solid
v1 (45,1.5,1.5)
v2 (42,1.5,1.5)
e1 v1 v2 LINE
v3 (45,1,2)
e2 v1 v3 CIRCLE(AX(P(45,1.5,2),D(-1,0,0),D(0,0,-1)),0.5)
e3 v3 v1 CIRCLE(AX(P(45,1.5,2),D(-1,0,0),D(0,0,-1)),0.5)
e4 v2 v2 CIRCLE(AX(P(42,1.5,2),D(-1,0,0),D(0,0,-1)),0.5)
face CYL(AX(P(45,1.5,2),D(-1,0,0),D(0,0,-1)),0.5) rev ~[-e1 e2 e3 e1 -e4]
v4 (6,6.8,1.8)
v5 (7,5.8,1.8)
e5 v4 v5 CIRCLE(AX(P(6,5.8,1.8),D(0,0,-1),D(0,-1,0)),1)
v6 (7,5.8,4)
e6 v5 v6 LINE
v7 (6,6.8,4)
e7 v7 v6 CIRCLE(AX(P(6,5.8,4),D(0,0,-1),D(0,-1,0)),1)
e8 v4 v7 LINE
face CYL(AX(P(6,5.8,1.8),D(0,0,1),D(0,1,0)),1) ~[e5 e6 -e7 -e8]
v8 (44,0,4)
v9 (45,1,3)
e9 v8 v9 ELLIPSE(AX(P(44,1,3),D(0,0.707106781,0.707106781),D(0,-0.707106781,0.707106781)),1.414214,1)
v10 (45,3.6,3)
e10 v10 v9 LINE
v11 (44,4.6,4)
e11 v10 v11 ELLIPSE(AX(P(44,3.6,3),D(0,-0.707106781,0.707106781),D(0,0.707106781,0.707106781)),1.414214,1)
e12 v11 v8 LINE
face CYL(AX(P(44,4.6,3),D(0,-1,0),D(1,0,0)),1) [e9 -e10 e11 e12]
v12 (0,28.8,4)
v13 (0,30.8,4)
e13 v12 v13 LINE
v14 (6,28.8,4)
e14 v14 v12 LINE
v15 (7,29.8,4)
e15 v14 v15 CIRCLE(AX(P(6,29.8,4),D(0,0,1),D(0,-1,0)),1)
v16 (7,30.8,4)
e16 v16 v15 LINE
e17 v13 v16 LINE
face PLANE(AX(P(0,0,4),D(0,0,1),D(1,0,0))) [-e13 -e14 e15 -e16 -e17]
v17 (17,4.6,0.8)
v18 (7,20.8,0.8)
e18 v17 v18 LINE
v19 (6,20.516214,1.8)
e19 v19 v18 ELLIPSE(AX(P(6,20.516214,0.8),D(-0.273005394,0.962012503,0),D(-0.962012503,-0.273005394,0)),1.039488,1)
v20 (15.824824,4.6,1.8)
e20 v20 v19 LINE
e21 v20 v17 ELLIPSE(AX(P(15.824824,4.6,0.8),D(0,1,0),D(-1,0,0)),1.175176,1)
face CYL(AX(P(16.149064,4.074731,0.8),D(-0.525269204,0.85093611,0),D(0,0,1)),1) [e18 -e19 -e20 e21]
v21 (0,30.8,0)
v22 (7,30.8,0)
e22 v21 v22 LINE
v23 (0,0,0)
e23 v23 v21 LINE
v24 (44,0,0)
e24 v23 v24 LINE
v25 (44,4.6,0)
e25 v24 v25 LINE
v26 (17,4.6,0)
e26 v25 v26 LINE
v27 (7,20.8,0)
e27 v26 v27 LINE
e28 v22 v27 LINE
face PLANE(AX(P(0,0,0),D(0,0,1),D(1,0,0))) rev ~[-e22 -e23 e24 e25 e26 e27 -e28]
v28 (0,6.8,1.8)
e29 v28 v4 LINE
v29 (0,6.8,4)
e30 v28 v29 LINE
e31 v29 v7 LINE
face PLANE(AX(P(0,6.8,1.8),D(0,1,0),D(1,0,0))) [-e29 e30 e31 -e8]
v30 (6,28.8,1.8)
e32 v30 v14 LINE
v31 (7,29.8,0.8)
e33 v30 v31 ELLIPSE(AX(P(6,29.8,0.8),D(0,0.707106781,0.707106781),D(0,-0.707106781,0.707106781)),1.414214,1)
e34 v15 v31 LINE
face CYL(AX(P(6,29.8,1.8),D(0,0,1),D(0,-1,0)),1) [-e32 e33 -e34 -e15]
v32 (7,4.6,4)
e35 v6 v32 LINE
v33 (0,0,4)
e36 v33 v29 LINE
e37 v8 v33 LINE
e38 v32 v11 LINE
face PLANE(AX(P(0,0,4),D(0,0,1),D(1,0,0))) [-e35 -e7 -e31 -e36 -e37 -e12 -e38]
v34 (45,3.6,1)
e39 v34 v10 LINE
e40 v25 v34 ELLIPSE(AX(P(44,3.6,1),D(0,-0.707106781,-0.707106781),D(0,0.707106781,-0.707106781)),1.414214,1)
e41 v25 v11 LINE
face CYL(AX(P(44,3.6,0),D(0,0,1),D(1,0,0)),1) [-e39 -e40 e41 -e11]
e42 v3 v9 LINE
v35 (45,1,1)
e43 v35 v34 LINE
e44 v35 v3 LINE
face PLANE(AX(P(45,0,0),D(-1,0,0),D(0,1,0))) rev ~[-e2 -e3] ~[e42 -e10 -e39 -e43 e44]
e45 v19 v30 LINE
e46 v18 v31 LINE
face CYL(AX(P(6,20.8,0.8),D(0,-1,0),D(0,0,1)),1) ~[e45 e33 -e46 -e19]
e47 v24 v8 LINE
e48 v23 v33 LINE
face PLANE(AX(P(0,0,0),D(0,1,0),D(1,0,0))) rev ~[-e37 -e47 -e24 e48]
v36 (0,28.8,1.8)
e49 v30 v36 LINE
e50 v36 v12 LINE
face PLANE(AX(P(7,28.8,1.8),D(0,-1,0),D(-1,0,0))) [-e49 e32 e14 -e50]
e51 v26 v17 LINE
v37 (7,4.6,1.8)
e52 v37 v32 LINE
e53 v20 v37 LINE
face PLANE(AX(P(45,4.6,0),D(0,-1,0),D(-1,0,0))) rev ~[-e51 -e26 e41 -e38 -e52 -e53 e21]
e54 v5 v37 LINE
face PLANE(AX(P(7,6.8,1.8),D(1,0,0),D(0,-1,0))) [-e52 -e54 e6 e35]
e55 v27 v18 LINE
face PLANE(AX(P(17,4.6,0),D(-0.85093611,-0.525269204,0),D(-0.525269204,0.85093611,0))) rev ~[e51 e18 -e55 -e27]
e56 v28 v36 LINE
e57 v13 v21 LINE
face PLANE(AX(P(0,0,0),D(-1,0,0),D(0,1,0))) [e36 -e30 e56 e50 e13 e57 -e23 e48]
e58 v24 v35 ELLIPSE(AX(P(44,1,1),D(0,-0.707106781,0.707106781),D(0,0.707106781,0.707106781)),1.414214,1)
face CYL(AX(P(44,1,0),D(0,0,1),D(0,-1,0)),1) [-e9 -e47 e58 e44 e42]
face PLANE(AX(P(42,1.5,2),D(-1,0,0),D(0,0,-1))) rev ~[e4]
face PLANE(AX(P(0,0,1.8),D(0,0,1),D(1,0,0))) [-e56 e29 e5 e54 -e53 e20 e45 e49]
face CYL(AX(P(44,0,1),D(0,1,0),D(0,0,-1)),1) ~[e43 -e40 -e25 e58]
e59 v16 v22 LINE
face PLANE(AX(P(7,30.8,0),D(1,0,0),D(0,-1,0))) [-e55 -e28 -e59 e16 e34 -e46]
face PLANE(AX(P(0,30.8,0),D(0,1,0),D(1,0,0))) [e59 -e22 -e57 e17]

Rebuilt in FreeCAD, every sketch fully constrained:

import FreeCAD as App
import Part
import Sketcher

V = App.Vector
Q = App.Units.Quantity


def edges_at(feature, points):
    """Names of the edges that pass closest to the given points."""
    edges = feature.Shape.Edges
    near = lambda p: min(range(len(edges)), key=lambda i: edges[i].distToShape(Part.Vertex(*p))[0])
    return sorted({f"Edge{near(p) + 1}" for p in points})

doc = App.newDocument("Part")
body = doc.addObject("PartDesign::Body", "Body")

# Sketch on XY plane
sketch1 = body.newObject("Sketcher::SketchObject", "Sketch")
sketch1.AttachmentSupport = (doc.getObject("XY_Plane"), [""])
sketch1.MapMode = "FlatFace"
sketch1.addGeometry([
    Part.LineSegment(V(0, 30.8, 0), V(0, 0, 0)),  # 0
    Part.LineSegment(V(0, 0, 0), V(45, 0, 0)),  # 1
    Part.LineSegment(V(45, 0, 0), V(45, 4.6, 0)),  # 2
    Part.LineSegment(V(45, 4.6, 0), V(17, 4.6, 0)),  # 3
    Part.LineSegment(V(17, 4.6, 0), V(7, 20.8, 0)),  # 4
    Part.LineSegment(V(7, 20.8, 0), V(7, 30.8, 0)),  # 5
    Part.LineSegment(V(7, 30.8, 0), V(0, 30.8, 0)),  # 6
], False)
sketch1.addConstraint([
    Sketcher.Constraint("Coincident", 0, 2, 1, 1),
    Sketcher.Constraint("Coincident", 1, 2, 2, 1),
    Sketcher.Constraint("Coincident", 2, 2, 3, 1),
    Sketcher.Constraint("Coincident", 3, 2, 4, 1),
    Sketcher.Constraint("Coincident", 4, 2, 5, 1),
    Sketcher.Constraint("Coincident", 5, 2, 6, 1),
    Sketcher.Constraint("Coincident", 6, 2, 0, 1),
    Sketcher.Constraint("Vertical", 0),
    Sketcher.Constraint("Horizontal", 1),
    Sketcher.Constraint("Vertical", 2),
    Sketcher.Constraint("Horizontal", 3),
    Sketcher.Constraint("Vertical", 5),
    Sketcher.Constraint("Horizontal", 6),
    Sketcher.Constraint("Coincident", 0, 2, -1, 1),
    Sketcher.Constraint("DistanceX", 1, 1, 1, 2, Q("45 mm")),
    Sketcher.Constraint("DistanceX", 3, 2, 3, 1, Q("28 mm")),
    Sketcher.Constraint("DistanceX", 6, 2, 6, 1, Q("7 mm")),
    Sketcher.Constraint("DistanceY", 5, 1, 5, 2, Q("10 mm")),
    Sketcher.Constraint("DistanceY", 0, 2, 0, 1, Q("30.8 mm")),
    Sketcher.Constraint("DistanceY", 2, 1, 2, 2, Q("4.6 mm")),
])
pad1 = body.newObject("PartDesign::Pad", "Pad")
pad1.Profile = sketch1
pad1.Length = 1.8

# Sketch on XY plane
sketch2 = body.newObject("Sketcher::SketchObject", "Sketch001")
sketch2.AttachmentSupport = (doc.getObject("XY_Plane"), [""])
sketch2.MapMode = "FlatFace"
sketch2.AttachmentOffset = App.Placement(V(0, 0, 1.8), App.Rotation())
sketch2.addGeometry([
    Part.LineSegment(V(0, 30.8, 0), V(0, 28.8, 0)),  # 0
    Part.LineSegment(V(0, 28.8, 0), V(7, 28.8, 0)),  # 1
    Part.LineSegment(V(7, 28.8, 0), V(7, 30.8, 0)),  # 2
    Part.LineSegment(V(7, 30.8, 0), V(0, 30.8, 0)),  # 3
    Part.LineSegment(V(0, 6.8, 0), V(0, 0, 0)),  # 4
    Part.LineSegment(V(0, 0, 0), V(45, 0, 0)),  # 5
    Part.LineSegment(V(45, 0, 0), V(45, 4.6, 0)),  # 6
    Part.LineSegment(V(45, 4.6, 0), V(7, 4.6, 0)),  # 7
    Part.LineSegment(V(7, 4.6, 0), V(7, 6.8, 0)),  # 8
    Part.LineSegment(V(7, 6.8, 0), V(0, 6.8, 0)),  # 9
], False)
sketch2.addConstraint([
    Sketcher.Constraint("Coincident", 0, 2, 1, 1),
    Sketcher.Constraint("Coincident", 1, 2, 2, 1),
    Sketcher.Constraint("Coincident", 2, 2, 3, 1),
    Sketcher.Constraint("Coincident", 3, 2, 0, 1),
    Sketcher.Constraint("Coincident", 4, 2, 5, 1),
    Sketcher.Constraint("Coincident", 5, 2, 6, 1),
    Sketcher.Constraint("Coincident", 6, 2, 7, 1),
    Sketcher.Constraint("Coincident", 7, 2, 8, 1),
    Sketcher.Constraint("Coincident", 8, 2, 9, 1),
    Sketcher.Constraint("Coincident", 9, 2, 4, 1),
    Sketcher.Constraint("Vertical", 0),
    Sketcher.Constraint("Horizontal", 1),
    Sketcher.Constraint("Vertical", 2),
    Sketcher.Constraint("Horizontal", 3),
    Sketcher.Constraint("Vertical", 4),
    Sketcher.Constraint("Horizontal", 5),
    Sketcher.Constraint("Vertical", 6),
    Sketcher.Constraint("Horizontal", 7),
    Sketcher.Constraint("Vertical", 8),
    Sketcher.Constraint("Horizontal", 9),
    Sketcher.Constraint("Coincident", 4, 2, -1, 1),
    Sketcher.Constraint("PointOnObject", 0, 2, -2),
    Sketcher.Constraint("Vertical", 2, 2, 7, 2),
    Sketcher.Constraint("DistanceY", 0, 2, 0, 1, Q("2 mm")),
    Sketcher.Constraint("DistanceY", 4, 2, 4, 1, Q("6.8 mm")),
    Sketcher.Constraint("DistanceX", 1, 1, 1, 2, Q("7 mm")),
    Sketcher.Constraint("DistanceX", 5, 1, 5, 2, Q("45 mm")),
    Sketcher.Constraint("DistanceY", 6, 1, 6, 2, Q("4.6 mm")),
    Sketcher.Constraint("DistanceY", 8, 2, 1, 2, Q("22 mm")),
])
pad2 = body.newObject("PartDesign::Pad", "Pad001")
pad2.Profile = sketch2
pad2.Length = 2.2
doc.recompute()

fillet = body.newObject("PartDesign::Fillet", "Fillet")
fillet.Base = (pad2, edges_at(pad2, [
    (45, 0, 2),
    (45, 2.3, 0),
    (45, 4.6, 2),
    (45, 2.3, 4),
]))
fillet.Radius = 1
doc.recompute()

fillet2 = body.newObject("PartDesign::Fillet", "Fillet001")
fillet2.Base = (fillet, edges_at(fillet, [
    (7, 6.8, 2.9),
    (7, 28.8, 2.9),
    (12, 12.7, 1.8),
    (7, 24.8, 1.8),
]))
fillet2.Radius = 1

# Sketch on YZ plane
sketch3 = body.newObject("Sketcher::SketchObject", "Sketch002")
sketch3.AttachmentSupport = (doc.getObject("YZ_Plane"), [""])
sketch3.MapMode = "FlatFace"
sketch3.AttachmentOffset = App.Placement(V(0, 0, 45), App.Rotation())
sketch3.addGeometry(Part.Circle(V(1.5, 2, 0), V(0, 0, 1), 0.5), False)
sketch3.addConstraint([
    Sketcher.Constraint("Diameter", 0, Q("1 mm")),
    Sketcher.Constraint("DistanceY", -1, 1, 0, 3, Q("2 mm")),
    Sketcher.Constraint("DistanceX", -1, 1, 0, 3, Q("1.5 mm")),
])
doc.recompute()
hole = body.newObject("PartDesign::Hole", "Hole")
hole.Profile = sketch3
hole.ThreadType = "None"
hole.Diameter = 1
hole.DepthType = "Dimension"
hole.Depth = 3
hole.DrillPoint = "Flat"

doc.recompute()
